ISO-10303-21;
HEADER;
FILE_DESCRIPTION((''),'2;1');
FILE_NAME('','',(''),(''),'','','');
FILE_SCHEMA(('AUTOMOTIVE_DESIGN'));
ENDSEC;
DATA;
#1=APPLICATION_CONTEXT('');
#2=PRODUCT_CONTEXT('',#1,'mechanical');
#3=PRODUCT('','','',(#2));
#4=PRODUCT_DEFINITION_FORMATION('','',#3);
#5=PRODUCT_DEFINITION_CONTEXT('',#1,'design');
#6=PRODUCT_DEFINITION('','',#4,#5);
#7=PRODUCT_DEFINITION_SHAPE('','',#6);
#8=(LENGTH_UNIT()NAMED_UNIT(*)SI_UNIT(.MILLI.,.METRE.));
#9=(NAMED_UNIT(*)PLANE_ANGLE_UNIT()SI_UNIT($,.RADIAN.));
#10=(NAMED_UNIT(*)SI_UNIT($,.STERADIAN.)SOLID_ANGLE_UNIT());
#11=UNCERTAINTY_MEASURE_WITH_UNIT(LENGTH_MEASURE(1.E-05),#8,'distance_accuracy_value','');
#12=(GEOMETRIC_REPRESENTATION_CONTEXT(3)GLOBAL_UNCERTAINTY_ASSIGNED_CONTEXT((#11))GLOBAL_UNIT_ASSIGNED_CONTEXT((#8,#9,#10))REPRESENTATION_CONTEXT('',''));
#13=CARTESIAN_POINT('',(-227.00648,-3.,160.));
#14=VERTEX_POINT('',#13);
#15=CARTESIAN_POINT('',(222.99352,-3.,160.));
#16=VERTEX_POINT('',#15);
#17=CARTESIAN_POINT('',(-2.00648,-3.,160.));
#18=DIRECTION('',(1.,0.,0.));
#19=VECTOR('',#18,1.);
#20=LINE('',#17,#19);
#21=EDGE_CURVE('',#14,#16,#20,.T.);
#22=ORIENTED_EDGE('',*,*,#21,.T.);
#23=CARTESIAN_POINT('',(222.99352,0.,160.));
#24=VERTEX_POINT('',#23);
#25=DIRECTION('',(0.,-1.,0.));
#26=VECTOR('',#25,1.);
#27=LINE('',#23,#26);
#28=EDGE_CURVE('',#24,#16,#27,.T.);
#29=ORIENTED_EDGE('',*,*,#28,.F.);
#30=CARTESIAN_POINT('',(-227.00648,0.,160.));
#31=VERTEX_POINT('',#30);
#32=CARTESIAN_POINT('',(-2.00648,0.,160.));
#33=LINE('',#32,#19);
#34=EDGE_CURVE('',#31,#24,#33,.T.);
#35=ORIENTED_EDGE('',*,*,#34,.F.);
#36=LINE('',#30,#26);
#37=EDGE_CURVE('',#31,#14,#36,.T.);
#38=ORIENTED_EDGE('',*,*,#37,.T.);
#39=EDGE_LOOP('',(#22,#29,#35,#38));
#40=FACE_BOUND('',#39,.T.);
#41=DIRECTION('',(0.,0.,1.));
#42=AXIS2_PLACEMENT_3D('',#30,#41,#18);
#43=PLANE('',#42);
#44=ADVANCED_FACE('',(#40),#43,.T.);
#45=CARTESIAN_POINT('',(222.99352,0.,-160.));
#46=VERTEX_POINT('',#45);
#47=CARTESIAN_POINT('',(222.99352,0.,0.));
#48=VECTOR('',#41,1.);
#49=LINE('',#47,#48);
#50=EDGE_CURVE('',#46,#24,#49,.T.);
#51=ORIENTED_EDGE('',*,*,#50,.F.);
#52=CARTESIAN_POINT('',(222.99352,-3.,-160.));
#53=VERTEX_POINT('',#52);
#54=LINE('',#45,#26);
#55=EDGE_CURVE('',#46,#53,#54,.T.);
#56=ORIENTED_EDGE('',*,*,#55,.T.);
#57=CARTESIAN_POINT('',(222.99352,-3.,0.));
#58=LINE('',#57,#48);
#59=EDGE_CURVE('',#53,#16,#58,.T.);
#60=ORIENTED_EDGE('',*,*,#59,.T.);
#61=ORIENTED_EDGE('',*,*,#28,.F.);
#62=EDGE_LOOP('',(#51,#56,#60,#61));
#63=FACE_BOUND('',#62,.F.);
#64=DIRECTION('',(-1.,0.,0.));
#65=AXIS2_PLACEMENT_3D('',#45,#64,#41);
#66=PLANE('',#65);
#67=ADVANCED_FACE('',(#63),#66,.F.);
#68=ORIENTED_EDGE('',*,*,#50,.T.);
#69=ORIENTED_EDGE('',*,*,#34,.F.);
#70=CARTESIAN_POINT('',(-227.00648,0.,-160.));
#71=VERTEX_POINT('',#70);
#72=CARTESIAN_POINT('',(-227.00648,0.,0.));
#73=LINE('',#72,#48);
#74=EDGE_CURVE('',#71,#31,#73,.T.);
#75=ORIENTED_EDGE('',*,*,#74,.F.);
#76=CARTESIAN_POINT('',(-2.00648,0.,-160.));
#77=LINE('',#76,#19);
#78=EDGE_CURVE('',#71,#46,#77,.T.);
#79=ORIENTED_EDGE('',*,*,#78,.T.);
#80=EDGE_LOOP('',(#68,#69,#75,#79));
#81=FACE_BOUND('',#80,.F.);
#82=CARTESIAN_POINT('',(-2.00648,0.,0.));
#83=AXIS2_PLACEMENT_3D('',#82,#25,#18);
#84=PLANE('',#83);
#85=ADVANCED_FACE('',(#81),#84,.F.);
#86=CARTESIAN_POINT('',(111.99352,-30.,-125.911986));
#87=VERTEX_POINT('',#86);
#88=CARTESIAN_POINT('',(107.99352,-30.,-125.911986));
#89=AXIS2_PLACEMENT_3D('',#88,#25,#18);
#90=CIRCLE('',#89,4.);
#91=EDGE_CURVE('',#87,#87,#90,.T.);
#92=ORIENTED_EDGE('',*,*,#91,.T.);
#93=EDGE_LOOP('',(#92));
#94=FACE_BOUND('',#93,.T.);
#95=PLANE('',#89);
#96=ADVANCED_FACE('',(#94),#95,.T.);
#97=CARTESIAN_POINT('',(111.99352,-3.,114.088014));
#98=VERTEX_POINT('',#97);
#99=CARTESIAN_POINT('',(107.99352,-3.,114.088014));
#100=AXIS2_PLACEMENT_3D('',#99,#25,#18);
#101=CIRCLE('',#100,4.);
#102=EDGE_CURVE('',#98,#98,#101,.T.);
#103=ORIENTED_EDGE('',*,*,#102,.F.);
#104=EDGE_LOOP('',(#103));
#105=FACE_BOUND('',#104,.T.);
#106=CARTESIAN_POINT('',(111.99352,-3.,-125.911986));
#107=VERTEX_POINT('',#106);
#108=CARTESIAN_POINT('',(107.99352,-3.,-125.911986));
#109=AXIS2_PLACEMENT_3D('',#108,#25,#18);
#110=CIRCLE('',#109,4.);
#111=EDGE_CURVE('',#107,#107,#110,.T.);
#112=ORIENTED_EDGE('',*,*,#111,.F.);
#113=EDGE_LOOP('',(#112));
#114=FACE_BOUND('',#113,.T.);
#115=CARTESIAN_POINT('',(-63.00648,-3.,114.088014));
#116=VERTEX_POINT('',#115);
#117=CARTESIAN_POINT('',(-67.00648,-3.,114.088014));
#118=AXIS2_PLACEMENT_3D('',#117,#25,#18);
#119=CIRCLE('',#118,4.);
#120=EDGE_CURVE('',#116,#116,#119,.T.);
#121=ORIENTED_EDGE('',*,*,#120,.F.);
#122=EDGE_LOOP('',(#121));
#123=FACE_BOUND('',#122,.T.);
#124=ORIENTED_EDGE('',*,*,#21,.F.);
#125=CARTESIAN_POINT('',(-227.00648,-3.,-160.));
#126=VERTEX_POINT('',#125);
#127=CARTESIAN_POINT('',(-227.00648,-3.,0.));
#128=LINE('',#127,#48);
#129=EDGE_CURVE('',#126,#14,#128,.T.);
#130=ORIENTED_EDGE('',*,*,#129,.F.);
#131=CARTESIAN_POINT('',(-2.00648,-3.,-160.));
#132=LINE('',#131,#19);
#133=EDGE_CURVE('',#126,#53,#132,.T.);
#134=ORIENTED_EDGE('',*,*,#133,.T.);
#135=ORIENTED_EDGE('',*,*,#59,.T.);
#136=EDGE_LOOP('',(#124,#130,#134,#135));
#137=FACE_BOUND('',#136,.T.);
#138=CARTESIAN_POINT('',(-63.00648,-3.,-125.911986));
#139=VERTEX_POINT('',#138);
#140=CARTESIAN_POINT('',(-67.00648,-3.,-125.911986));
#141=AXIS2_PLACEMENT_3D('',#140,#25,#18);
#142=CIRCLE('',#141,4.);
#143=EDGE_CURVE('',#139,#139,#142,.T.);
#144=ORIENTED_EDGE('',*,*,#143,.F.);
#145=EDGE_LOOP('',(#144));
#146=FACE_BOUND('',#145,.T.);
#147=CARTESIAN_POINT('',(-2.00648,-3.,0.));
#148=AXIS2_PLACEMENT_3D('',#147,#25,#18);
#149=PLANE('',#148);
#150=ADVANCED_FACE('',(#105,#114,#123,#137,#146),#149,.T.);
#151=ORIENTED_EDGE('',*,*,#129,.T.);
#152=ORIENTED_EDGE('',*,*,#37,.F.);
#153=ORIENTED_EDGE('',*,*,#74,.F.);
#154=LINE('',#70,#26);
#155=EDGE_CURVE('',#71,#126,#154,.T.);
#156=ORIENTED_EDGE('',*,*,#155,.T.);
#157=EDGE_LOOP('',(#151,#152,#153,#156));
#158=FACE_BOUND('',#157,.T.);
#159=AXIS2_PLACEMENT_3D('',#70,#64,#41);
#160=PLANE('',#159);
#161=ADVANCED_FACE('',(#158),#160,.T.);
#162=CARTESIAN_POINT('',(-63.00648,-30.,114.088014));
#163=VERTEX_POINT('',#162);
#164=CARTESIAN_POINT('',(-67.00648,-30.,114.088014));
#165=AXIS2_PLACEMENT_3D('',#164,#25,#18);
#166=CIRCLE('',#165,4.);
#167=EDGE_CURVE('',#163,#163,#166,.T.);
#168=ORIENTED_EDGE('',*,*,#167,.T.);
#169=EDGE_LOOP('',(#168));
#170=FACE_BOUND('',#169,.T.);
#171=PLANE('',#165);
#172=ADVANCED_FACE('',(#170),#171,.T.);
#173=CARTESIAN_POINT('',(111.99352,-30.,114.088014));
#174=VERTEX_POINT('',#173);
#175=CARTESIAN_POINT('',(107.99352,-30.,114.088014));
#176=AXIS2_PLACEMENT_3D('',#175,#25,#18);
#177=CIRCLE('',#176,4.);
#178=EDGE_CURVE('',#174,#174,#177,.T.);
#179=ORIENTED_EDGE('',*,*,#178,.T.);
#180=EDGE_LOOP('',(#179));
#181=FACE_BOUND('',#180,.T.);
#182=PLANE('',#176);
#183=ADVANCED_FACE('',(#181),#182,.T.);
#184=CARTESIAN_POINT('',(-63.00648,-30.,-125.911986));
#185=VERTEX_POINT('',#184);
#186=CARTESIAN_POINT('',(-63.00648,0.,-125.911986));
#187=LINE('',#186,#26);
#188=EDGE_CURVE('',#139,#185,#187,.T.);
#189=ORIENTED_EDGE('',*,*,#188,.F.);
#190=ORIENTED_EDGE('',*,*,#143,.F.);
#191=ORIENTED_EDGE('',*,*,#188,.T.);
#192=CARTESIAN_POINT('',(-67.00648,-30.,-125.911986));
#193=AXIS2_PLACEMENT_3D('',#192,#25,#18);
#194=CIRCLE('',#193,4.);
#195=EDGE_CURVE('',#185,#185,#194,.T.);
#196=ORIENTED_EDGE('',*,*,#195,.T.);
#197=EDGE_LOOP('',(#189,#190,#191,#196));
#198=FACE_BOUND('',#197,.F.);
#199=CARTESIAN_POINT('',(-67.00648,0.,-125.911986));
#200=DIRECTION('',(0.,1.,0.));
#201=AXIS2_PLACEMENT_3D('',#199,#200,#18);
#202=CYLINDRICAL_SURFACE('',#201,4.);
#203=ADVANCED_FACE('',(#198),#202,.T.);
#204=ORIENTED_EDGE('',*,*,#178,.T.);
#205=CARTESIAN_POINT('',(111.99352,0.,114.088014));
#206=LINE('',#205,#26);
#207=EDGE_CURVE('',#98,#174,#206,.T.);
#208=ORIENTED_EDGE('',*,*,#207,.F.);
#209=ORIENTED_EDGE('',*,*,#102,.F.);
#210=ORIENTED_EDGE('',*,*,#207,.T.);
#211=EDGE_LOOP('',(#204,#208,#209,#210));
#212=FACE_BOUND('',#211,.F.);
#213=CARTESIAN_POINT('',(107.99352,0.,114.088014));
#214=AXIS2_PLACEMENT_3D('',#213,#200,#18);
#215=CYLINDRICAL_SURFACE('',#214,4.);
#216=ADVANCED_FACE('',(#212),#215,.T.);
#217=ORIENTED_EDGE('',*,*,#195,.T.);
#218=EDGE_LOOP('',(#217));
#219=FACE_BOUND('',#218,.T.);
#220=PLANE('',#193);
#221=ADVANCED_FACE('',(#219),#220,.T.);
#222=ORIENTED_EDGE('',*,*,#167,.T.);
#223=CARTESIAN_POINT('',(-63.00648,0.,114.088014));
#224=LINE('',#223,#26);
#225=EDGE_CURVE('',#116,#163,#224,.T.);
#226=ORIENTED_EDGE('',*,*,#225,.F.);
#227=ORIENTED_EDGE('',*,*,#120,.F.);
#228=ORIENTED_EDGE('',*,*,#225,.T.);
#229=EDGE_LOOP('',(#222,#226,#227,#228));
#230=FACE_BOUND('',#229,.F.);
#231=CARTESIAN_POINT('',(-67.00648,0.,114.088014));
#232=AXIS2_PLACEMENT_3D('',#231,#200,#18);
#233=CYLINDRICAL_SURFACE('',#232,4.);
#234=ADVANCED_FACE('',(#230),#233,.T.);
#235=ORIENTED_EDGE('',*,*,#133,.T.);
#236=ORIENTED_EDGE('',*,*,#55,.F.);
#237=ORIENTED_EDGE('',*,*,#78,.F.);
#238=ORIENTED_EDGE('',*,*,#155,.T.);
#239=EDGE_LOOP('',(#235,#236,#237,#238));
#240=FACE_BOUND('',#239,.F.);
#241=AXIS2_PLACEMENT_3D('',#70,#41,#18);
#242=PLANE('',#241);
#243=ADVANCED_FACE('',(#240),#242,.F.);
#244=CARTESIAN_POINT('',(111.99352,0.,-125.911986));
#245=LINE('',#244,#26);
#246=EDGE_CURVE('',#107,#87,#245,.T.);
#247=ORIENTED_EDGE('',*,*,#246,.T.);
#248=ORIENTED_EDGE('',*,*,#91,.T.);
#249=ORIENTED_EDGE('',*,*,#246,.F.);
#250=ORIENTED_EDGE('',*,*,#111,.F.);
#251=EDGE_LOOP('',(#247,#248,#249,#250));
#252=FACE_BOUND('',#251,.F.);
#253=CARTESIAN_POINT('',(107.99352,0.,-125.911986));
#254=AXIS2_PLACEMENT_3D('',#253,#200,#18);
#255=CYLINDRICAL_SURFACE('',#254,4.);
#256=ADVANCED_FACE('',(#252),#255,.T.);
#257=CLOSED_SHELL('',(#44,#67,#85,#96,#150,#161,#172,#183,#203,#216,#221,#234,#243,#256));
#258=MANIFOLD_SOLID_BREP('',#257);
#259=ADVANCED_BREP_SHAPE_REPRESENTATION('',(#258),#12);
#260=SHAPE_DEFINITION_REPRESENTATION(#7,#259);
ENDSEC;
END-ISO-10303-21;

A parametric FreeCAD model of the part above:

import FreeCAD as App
import Part
import Sketcher

V = App.Vector


def add_polygon(sketch, points):
    """Adds a closed chain of lines whose ends are joined by coincident constraints."""
    first, n = sketch.GeometryCount, len(points)
    for a, b in zip(points, points[1:] + points[:1]):
        sketch.addGeometry(Part.LineSegment(App.Vector(*a, 0), App.Vector(*b, 0)), False)
    for i in range(n):
        sketch.addConstraint(Sketcher.Constraint("Coincident", first + i, 2, first + (i + 1) % n, 1))

doc = App.newDocument("Part")
body = doc.addObject("PartDesign::Body", "Body")

# Sketch on XZ plane
sketch1 = body.newObject("Sketcher::SketchObject", "Sketch")
sketch1.AttachmentSupport = (doc.getObject("XZ_Plane"), [""])
sketch1.MapMode = "FlatFace"
add_polygon(sketch1, [(-227.00648, 160), (-227.00648, -160), (222.99352, -160), (222.99352, 160)])  # lines 0-3
sketch1.addGeometry(Part.Circle(V(-67.00648, -125.911986, 0), V(0, 0, 1), 4), False)  # 4
sketch1.addGeometry(Part.Circle(V(107.99352, -125.911986, 0), V(0, 0, 1), 4), False)  # 5
sketch1.addGeometry(Part.Circle(V(-67.00648, 114.088014, 0), V(0, 0, 1), 4), False)  # 6
sketch1.addGeometry(Part.Circle(V(107.99352, 114.088014, 0), V(0, 0, 1), 4), False)  # 7
sketch1.addConstraint([
    Sketcher.Constraint("Vertical", 0),
    Sketcher.Constraint("Horizontal", 1),
    Sketcher.Constraint("Vertical", 2),
    Sketcher.Constraint("Horizontal", 3),
    Sketcher.Constraint("Equal", 4, 5),
    Sketcher.Constraint("Equal", 5, 6),
    Sketcher.Constraint("Equal", 6, 7),
    Sketcher.Constraint("Horizontal", 4, 3, 5, 3),
    Sketcher.Constraint("Horizontal", 6, 3, 7, 3),
    Sketcher.Constraint("Vertical", 4, 3, 6, 3),
    Sketcher.Constraint("Vertical", 5, 3, 7, 3),
    Sketcher.Constraint("Diameter", 4, 8.0),
    Sketcher.Constraint("DistanceX", 1, 1, 1, 2, 450.0),
    Sketcher.Constraint("DistanceY", 0, 2, 0, 1, 320.0),
    Sketcher.Constraint("DistanceY", 0, 2, -1, 1, 160.0),
    Sketcher.Constraint("DistanceX", 4, 3, 5, 3, 175.0),
    Sketcher.Constraint("DistanceY", 4, 3, 6, 3, 240.0),
    Sketcher.Constraint("DistanceX", 0, 2, 4, 3, 160.0),
    Sketcher.Constraint("DistanceX", 4, 3, -1, 1, 67.00648),
    Sketcher.Constraint("DistanceY", 4, 3, -1, 1, 125.911986),
])
pad1 = body.newObject("PartDesign::Pad", "Pad")
pad1.Profile = sketch1
pad1.Length = 3

# Sketch on XZ plane
sketch2 = body.newObject("Sketcher::SketchObject", "Sketch001")
sketch2.AttachmentSupport = (doc.getObject("XZ_Plane"), [""])
sketch2.MapMode = "FlatFace"
sketch2.addGeometry([
    Part.Circle(V(-67.00648, 114.088014, 0), V(0, 0, 1), 4),
    Part.Circle(V(107.99352, 114.088014, 0), V(0, 0, 1), 4),
    Part.Circle(V(-67.00648, -125.911986, 0), V(0, 0, 1), 4),
    Part.Circle(V(107.99352, -125.911986, 0), V(0, 0, 1), 4),
], False)
sketch2.addConstraint([
    Sketcher.Constraint("Equal", 0, 1),
    Sketcher.Constraint("Equal", 1, 2),
    Sketcher.Constraint("Equal", 2, 3),
    Sketcher.Constraint("Horizontal", 0, 3, 1, 3),
    Sketcher.Constraint("Horizontal", 2, 3, 3, 3),
    Sketcher.Constraint("Vertical", 0, 3, 2, 3),
    Sketcher.Constraint("Vertical", 1, 3, 3, 3),
    Sketcher.Constraint("Diameter", 0, 8.0),
    Sketcher.Constraint("DistanceX", 0, 3, 1, 3, 175.0),
    Sketcher.Constraint("DistanceY", 2, 3, 0, 3, 240.0),
    Sketcher.Constraint("DistanceX", 0, 3, -1, 1, 67.00648),
    Sketcher.Constraint("DistanceY", -1, 1, 0, 3, 114.088014),
])
pad2 = body.newObject("PartDesign::Pad", "Pad001")
pad2.Profile = sketch2
pad2.Length = 30

doc.recompute()
